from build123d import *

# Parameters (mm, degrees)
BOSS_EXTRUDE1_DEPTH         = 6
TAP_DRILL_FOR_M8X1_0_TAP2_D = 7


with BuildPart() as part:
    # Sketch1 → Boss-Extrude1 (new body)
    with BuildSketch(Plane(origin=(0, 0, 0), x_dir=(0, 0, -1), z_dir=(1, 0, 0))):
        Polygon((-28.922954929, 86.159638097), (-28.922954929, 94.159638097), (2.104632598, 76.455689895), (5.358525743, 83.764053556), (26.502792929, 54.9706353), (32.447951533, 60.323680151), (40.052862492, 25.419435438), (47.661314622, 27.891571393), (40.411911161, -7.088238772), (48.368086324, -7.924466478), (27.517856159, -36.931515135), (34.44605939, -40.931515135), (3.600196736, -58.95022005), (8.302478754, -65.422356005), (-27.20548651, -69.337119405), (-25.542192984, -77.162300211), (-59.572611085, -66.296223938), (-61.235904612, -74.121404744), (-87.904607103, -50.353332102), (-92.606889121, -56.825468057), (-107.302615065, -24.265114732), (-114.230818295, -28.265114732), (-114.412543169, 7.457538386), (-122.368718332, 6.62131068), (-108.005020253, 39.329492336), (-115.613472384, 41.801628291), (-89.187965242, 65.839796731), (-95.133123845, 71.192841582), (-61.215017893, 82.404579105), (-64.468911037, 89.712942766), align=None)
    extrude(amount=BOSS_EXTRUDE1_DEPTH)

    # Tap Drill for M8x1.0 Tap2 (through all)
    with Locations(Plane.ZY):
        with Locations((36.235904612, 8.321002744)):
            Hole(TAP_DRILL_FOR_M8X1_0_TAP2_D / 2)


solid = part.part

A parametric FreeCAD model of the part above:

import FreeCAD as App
import Part
import Sketcher

V = App.Vector
Q = App.Units.Quantity

doc = App.newDocument("Part")
body = doc.addObject("PartDesign::Body", "Body")

sketch1 = body.newObject("Sketcher::SketchObject", "Sketch")
sketch1.AttachmentSupport = (doc.getObject("YZ_Plane"), [""])
sketch1.MapMode = "FlatFace"
sketch1.addGeometry([
    Part.LineSegment(V(94, 29, 0), V(86, 29, 0)),
    Part.LineSegment(V(86, 29, 0), V(90, 64, 0)),
    Part.LineSegment(V(90, 64, 0), V(82, 61, 0)),
    Part.LineSegment(V(82, 61, 0), V(71, 95, 0)),
    Part.LineSegment(V(71, 95, 0), V(66, 89, 0)),
    Part.LineSegment(V(66, 89, 0), V(42, 116, 0)),
    Part.LineSegment(V(42, 116, 0), V(39, 108, 0)),
    Part.LineSegment(V(39, 108, 0), V(7, 122, 0)),
    Part.LineSegment(V(7, 122, 0), V(7, 114, 0)),
    Part.LineSegment(V(7, 114, 0), V(-28, 114, 0)),
    Part.LineSegment(V(-28, 114, 0), V(-24, 107, 0)),
    Part.LineSegment(V(-24, 107, 0), V(-57, 93, 0)),
    Part.LineSegment(V(-57, 93, 0), V(-50, 88, 0)),
    Part.LineSegment(V(-50, 88, 0), V(-74, 61, 0)),
    Part.LineSegment(V(-74, 61, 0), V(-66, 60, 0)),
    Part.LineSegment(V(-66, 60, 0), V(-77, 26, 0)),
    Part.LineSegment(V(-77, 26, 0), V(-69, 27, 0)),
    Part.LineSegment(V(-69, 27, 0), V(-65, -8, 0)),
    Part.LineSegment(V(-65, -8, 0), V(-59, -4, 0)),
    Part.LineSegment(V(-59, -4, 0), V(-41, -34, 0)),
    Part.LineSegment(V(-41, -34, 0), V(-37, -28, 0)),
    Part.LineSegment(V(-37, -28, 0), V(-8, -48, 0)),
    Part.LineSegment(V(-8, -48, 0), V(-7, -40, 0)),
    Part.LineSegment(V(-7, -40, 0), V(28, -48, 0)),
    Part.LineSegment(V(28, -48, 0), V(25, -40, 0)),
    Part.LineSegment(V(25, -40, 0), V(60, -32, 0)),
    Part.LineSegment(V(60, -32, 0), V(55, -27, 0)),
    Part.LineSegment(V(55, -27, 0), V(84, -5, 0)),
    Part.LineSegment(V(84, -5, 0), V(76, -2, 0)),
    Part.LineSegment(V(76, -2, 0), V(94, 29, 0)),
], False)
sketch1.addConstraint([
    Sketcher.Constraint("Coincident", 0, 2, 1, 1),
    Sketcher.Constraint("Coincident", 1, 2, 2, 1),
    Sketcher.Constraint("Coincident", 2, 2, 3, 1),
    Sketcher.Constraint("Coincident", 3, 2, 4, 1),
    Sketcher.Constraint("Coincident", 4, 2, 5, 1),
    Sketcher.Constraint("Coincident", 5, 2, 6, 1),
    Sketcher.Constraint("Coincident", 6, 2, 7, 1),
    Sketcher.Constraint("Coincident", 7, 2, 8, 1),
    Sketcher.Constraint("Coincident", 8, 2, 9, 1),
    Sketcher.Constraint("Coincident", 9, 2, 10, 1),
    Sketcher.Constraint("Coincident", 10, 2, 11, 1),
    Sketcher.Constraint("Coincident", 11, 2, 12, 1),
    Sketcher.Constraint("Coincident", 12, 2, 13, 1),
    Sketcher.Constraint("Coincident", 13, 2, 14, 1),
    Sketcher.Constraint("Coincident", 14, 2, 15, 1),
    Sketcher.Constraint("Coincident", 15, 2, 16, 1),
    Sketcher.Constraint("Coincident", 16, 2, 17, 1),
    Sketcher.Constraint("Coincident", 17, 2, 18, 1),
    Sketcher.Constraint("Coincident", 18, 2, 19, 1),
    Sketcher.Constraint("Coincident", 19, 2, 20, 1),
    Sketcher.Constraint("Coincident", 20, 2, 21, 1),
    Sketcher.Constraint("Coincident", 21, 2, 22, 1),
    Sketcher.Constraint("Coincident", 22, 2, 23, 1),
    Sketcher.Constraint("Coincident", 23, 2, 24, 1),
    Sketcher.Constraint("Coincident", 24, 2, 25, 1),
    Sketcher.Constraint("Coincident", 25, 2, 26, 1),
    Sketcher.Constraint("Coincident", 26, 2, 27, 1),
    Sketcher.Constraint("Coincident", 27, 2, 28, 1),
    Sketcher.Constraint("Coincident", 28, 2, 29, 1),
    Sketcher.Constraint("Coincident", 29, 2, 0, 1),
    Sketcher.Constraint("Horizontal", 0),
    Sketcher.Constraint("Equal", 1, 3),
    Sketcher.Constraint("Equal", 2, 4),
    Sketcher.Constraint("Equal", 3, 5),
    Sketcher.Constraint("Equal", 4, 6),
    Sketcher.Constraint("Equal", 5, 7),
    Sketcher.Constraint("Equal", 6, 8),
    Sketcher.Constraint("Equal", 7, 9),
    Sketcher.Constraint("Equal", 8, 10),
    Sketcher.Constraint("Equal", 9, 11),
    Sketcher.Constraint("Equal", 10, 12),
    Sketcher.Constraint("Equal", 11, 13),
    Sketcher.Constraint("Equal", 12, 14),
    Sketcher.Constraint("Equal", 13, 15),
    Sketcher.Constraint("Equal", 14, 16),
    Sketcher.Constraint("Equal", 15, 17),
    Sketcher.Constraint("Equal", 16, 18),
    Sketcher.Constraint("Equal", 17, 19),
    Sketcher.Constraint("Equal", 18, 20),
    Sketcher.Constraint("Equal", 19, 21),
    Sketcher.Constraint("Equal", 20, 22),
    Sketcher.Constraint("Equal", 21, 23),
    Sketcher.Constraint("Equal", 22, 24),
    Sketcher.Constraint("Equal", 23, 25),
    Sketcher.Constraint("Equal", 24, 26),
    Sketcher.Constraint("Equal", 25, 27),
    Sketcher.Constraint("Equal", 26, 28),
    Sketcher.Constraint("Equal", 27, 29),
    Sketcher.Constraint("DistanceX", 0, 2, 0, 1, Q("8 mm")),
    Sketcher.Constraint("Angle", 2, Q("-156 deg")),
    Sketcher.Constraint("Angle", 4, Q("-132 deg")),
    Sketcher.Constraint("Angle", 6, Q("-108 deg")),
    Sketcher.Constraint("Angle", 8, Q("-84 deg")),
    Sketcher.Constraint("Angle", 10, Q("-60 deg")),
    Sketcher.Constraint("Angle", 12, Q("-36 deg")),
    Sketcher.Constraint("Angle", 14, Q("-12 deg")),
    Sketcher.Constraint("Angle", 16, Q("12 deg")),
    Sketcher.Constraint("Angle", 18, Q("36 deg")),
    Sketcher.Constraint("Angle", 20, Q("60 deg")),
    Sketcher.Constraint("Angle", 22, Q("84 deg")),
    Sketcher.Constraint("Angle", 24, Q("108 deg")),
    Sketcher.Constraint("Angle", 26, Q("132 deg")),
    Sketcher.Constraint("Angle", 28, Q("156 deg")),
    Sketcher.Constraint("Distance", 2, Q("8 mm")),
    Sketcher.Constraint("DistanceX", 15, 2, -1, 1, Q("77.1623 mm")),
    Sketcher.Constraint("DistanceX", 3, 2, 1, 2, Q("18.520101 mm")),
    Sketcher.Constraint("DistanceY", 6, 2, 7, 2, Q("14.363698 mm")),
    Sketcher.Constraint("DistanceY", 2, 2, 7, 2, Q("61.1537 mm")),
    Sketcher.Constraint("DistanceY", 9, 2, 7, 2, Q("8.1379 mm")),
    Sketcher.Constraint("DistanceX", 16, 2, 18, 2, Q("10.386899 mm")),
    Sketcher.Constraint("DistanceY", 18, 2, 13, 2, Q("64.836101 mm")),
    Sketcher.Constraint("DistanceX", 21, 2, 24, 2, Q("33.343902 mm")),
    Sketcher.Constraint("DistanceX", 24, 2, 26, 2, Q("29.5512 mm")),
    Sketcher.Constraint("DistanceX", -1, 1, 0, 2, Q("86.159638 mm")),
    Sketcher.Constraint("DistanceY", -1, 1, 1, 2, Q("64.468911 mm")),
    Sketcher.Constraint("DistanceX", -1, 1, 2, 2, Q("82.404579 mm")),
    Sketcher.Constraint("DistanceX", -1, 1, 5, 2, Q("41.801628 mm")),
    Sketcher.Constraint("DistanceX", 11, 2, -1, 1, Q("56.825468 mm")),
    Sketcher.Constraint("DistanceY", 19, 2, -1, 1, Q("34.446059 mm")),
    Sketcher.Constraint("DistanceX", 22, 2, -1, 1, Q("7.088239 mm")),
])
pad1 = body.newObject("PartDesign::Pad", "Pad")
pad1.Profile = sketch1
pad1.Length = 6

sketch2 = body.newObject("Sketcher::SketchObject", "Sketch001")
sketch2.AttachmentSupport = (doc.getObject("YZ_Plane"), [""])
sketch2.MapMode = "FlatFace"
sketch2.addGeometry(Part.Circle(V(8.3, 36.2, 0), V(0, 0, 1), 3.5), False)
sketch2.addConstraint([
    Sketcher.Constraint("Diameter", 0, Q("7 mm")),
    Sketcher.Constraint("DistanceX", -1, 1, 0, 3, Q("8.321003 mm")),
    Sketcher.Constraint("DistanceY", -1, 1, 0, 3, Q("36.235905 mm")),
])
doc.recompute()
hole = body.newObject("PartDesign::Hole", "Hole")
hole.Profile = sketch2
hole.ThreadType = "None"
hole.Diameter = 7
hole.DepthType = "ThroughAll"
hole.Reversed = True

doc.recompute()
